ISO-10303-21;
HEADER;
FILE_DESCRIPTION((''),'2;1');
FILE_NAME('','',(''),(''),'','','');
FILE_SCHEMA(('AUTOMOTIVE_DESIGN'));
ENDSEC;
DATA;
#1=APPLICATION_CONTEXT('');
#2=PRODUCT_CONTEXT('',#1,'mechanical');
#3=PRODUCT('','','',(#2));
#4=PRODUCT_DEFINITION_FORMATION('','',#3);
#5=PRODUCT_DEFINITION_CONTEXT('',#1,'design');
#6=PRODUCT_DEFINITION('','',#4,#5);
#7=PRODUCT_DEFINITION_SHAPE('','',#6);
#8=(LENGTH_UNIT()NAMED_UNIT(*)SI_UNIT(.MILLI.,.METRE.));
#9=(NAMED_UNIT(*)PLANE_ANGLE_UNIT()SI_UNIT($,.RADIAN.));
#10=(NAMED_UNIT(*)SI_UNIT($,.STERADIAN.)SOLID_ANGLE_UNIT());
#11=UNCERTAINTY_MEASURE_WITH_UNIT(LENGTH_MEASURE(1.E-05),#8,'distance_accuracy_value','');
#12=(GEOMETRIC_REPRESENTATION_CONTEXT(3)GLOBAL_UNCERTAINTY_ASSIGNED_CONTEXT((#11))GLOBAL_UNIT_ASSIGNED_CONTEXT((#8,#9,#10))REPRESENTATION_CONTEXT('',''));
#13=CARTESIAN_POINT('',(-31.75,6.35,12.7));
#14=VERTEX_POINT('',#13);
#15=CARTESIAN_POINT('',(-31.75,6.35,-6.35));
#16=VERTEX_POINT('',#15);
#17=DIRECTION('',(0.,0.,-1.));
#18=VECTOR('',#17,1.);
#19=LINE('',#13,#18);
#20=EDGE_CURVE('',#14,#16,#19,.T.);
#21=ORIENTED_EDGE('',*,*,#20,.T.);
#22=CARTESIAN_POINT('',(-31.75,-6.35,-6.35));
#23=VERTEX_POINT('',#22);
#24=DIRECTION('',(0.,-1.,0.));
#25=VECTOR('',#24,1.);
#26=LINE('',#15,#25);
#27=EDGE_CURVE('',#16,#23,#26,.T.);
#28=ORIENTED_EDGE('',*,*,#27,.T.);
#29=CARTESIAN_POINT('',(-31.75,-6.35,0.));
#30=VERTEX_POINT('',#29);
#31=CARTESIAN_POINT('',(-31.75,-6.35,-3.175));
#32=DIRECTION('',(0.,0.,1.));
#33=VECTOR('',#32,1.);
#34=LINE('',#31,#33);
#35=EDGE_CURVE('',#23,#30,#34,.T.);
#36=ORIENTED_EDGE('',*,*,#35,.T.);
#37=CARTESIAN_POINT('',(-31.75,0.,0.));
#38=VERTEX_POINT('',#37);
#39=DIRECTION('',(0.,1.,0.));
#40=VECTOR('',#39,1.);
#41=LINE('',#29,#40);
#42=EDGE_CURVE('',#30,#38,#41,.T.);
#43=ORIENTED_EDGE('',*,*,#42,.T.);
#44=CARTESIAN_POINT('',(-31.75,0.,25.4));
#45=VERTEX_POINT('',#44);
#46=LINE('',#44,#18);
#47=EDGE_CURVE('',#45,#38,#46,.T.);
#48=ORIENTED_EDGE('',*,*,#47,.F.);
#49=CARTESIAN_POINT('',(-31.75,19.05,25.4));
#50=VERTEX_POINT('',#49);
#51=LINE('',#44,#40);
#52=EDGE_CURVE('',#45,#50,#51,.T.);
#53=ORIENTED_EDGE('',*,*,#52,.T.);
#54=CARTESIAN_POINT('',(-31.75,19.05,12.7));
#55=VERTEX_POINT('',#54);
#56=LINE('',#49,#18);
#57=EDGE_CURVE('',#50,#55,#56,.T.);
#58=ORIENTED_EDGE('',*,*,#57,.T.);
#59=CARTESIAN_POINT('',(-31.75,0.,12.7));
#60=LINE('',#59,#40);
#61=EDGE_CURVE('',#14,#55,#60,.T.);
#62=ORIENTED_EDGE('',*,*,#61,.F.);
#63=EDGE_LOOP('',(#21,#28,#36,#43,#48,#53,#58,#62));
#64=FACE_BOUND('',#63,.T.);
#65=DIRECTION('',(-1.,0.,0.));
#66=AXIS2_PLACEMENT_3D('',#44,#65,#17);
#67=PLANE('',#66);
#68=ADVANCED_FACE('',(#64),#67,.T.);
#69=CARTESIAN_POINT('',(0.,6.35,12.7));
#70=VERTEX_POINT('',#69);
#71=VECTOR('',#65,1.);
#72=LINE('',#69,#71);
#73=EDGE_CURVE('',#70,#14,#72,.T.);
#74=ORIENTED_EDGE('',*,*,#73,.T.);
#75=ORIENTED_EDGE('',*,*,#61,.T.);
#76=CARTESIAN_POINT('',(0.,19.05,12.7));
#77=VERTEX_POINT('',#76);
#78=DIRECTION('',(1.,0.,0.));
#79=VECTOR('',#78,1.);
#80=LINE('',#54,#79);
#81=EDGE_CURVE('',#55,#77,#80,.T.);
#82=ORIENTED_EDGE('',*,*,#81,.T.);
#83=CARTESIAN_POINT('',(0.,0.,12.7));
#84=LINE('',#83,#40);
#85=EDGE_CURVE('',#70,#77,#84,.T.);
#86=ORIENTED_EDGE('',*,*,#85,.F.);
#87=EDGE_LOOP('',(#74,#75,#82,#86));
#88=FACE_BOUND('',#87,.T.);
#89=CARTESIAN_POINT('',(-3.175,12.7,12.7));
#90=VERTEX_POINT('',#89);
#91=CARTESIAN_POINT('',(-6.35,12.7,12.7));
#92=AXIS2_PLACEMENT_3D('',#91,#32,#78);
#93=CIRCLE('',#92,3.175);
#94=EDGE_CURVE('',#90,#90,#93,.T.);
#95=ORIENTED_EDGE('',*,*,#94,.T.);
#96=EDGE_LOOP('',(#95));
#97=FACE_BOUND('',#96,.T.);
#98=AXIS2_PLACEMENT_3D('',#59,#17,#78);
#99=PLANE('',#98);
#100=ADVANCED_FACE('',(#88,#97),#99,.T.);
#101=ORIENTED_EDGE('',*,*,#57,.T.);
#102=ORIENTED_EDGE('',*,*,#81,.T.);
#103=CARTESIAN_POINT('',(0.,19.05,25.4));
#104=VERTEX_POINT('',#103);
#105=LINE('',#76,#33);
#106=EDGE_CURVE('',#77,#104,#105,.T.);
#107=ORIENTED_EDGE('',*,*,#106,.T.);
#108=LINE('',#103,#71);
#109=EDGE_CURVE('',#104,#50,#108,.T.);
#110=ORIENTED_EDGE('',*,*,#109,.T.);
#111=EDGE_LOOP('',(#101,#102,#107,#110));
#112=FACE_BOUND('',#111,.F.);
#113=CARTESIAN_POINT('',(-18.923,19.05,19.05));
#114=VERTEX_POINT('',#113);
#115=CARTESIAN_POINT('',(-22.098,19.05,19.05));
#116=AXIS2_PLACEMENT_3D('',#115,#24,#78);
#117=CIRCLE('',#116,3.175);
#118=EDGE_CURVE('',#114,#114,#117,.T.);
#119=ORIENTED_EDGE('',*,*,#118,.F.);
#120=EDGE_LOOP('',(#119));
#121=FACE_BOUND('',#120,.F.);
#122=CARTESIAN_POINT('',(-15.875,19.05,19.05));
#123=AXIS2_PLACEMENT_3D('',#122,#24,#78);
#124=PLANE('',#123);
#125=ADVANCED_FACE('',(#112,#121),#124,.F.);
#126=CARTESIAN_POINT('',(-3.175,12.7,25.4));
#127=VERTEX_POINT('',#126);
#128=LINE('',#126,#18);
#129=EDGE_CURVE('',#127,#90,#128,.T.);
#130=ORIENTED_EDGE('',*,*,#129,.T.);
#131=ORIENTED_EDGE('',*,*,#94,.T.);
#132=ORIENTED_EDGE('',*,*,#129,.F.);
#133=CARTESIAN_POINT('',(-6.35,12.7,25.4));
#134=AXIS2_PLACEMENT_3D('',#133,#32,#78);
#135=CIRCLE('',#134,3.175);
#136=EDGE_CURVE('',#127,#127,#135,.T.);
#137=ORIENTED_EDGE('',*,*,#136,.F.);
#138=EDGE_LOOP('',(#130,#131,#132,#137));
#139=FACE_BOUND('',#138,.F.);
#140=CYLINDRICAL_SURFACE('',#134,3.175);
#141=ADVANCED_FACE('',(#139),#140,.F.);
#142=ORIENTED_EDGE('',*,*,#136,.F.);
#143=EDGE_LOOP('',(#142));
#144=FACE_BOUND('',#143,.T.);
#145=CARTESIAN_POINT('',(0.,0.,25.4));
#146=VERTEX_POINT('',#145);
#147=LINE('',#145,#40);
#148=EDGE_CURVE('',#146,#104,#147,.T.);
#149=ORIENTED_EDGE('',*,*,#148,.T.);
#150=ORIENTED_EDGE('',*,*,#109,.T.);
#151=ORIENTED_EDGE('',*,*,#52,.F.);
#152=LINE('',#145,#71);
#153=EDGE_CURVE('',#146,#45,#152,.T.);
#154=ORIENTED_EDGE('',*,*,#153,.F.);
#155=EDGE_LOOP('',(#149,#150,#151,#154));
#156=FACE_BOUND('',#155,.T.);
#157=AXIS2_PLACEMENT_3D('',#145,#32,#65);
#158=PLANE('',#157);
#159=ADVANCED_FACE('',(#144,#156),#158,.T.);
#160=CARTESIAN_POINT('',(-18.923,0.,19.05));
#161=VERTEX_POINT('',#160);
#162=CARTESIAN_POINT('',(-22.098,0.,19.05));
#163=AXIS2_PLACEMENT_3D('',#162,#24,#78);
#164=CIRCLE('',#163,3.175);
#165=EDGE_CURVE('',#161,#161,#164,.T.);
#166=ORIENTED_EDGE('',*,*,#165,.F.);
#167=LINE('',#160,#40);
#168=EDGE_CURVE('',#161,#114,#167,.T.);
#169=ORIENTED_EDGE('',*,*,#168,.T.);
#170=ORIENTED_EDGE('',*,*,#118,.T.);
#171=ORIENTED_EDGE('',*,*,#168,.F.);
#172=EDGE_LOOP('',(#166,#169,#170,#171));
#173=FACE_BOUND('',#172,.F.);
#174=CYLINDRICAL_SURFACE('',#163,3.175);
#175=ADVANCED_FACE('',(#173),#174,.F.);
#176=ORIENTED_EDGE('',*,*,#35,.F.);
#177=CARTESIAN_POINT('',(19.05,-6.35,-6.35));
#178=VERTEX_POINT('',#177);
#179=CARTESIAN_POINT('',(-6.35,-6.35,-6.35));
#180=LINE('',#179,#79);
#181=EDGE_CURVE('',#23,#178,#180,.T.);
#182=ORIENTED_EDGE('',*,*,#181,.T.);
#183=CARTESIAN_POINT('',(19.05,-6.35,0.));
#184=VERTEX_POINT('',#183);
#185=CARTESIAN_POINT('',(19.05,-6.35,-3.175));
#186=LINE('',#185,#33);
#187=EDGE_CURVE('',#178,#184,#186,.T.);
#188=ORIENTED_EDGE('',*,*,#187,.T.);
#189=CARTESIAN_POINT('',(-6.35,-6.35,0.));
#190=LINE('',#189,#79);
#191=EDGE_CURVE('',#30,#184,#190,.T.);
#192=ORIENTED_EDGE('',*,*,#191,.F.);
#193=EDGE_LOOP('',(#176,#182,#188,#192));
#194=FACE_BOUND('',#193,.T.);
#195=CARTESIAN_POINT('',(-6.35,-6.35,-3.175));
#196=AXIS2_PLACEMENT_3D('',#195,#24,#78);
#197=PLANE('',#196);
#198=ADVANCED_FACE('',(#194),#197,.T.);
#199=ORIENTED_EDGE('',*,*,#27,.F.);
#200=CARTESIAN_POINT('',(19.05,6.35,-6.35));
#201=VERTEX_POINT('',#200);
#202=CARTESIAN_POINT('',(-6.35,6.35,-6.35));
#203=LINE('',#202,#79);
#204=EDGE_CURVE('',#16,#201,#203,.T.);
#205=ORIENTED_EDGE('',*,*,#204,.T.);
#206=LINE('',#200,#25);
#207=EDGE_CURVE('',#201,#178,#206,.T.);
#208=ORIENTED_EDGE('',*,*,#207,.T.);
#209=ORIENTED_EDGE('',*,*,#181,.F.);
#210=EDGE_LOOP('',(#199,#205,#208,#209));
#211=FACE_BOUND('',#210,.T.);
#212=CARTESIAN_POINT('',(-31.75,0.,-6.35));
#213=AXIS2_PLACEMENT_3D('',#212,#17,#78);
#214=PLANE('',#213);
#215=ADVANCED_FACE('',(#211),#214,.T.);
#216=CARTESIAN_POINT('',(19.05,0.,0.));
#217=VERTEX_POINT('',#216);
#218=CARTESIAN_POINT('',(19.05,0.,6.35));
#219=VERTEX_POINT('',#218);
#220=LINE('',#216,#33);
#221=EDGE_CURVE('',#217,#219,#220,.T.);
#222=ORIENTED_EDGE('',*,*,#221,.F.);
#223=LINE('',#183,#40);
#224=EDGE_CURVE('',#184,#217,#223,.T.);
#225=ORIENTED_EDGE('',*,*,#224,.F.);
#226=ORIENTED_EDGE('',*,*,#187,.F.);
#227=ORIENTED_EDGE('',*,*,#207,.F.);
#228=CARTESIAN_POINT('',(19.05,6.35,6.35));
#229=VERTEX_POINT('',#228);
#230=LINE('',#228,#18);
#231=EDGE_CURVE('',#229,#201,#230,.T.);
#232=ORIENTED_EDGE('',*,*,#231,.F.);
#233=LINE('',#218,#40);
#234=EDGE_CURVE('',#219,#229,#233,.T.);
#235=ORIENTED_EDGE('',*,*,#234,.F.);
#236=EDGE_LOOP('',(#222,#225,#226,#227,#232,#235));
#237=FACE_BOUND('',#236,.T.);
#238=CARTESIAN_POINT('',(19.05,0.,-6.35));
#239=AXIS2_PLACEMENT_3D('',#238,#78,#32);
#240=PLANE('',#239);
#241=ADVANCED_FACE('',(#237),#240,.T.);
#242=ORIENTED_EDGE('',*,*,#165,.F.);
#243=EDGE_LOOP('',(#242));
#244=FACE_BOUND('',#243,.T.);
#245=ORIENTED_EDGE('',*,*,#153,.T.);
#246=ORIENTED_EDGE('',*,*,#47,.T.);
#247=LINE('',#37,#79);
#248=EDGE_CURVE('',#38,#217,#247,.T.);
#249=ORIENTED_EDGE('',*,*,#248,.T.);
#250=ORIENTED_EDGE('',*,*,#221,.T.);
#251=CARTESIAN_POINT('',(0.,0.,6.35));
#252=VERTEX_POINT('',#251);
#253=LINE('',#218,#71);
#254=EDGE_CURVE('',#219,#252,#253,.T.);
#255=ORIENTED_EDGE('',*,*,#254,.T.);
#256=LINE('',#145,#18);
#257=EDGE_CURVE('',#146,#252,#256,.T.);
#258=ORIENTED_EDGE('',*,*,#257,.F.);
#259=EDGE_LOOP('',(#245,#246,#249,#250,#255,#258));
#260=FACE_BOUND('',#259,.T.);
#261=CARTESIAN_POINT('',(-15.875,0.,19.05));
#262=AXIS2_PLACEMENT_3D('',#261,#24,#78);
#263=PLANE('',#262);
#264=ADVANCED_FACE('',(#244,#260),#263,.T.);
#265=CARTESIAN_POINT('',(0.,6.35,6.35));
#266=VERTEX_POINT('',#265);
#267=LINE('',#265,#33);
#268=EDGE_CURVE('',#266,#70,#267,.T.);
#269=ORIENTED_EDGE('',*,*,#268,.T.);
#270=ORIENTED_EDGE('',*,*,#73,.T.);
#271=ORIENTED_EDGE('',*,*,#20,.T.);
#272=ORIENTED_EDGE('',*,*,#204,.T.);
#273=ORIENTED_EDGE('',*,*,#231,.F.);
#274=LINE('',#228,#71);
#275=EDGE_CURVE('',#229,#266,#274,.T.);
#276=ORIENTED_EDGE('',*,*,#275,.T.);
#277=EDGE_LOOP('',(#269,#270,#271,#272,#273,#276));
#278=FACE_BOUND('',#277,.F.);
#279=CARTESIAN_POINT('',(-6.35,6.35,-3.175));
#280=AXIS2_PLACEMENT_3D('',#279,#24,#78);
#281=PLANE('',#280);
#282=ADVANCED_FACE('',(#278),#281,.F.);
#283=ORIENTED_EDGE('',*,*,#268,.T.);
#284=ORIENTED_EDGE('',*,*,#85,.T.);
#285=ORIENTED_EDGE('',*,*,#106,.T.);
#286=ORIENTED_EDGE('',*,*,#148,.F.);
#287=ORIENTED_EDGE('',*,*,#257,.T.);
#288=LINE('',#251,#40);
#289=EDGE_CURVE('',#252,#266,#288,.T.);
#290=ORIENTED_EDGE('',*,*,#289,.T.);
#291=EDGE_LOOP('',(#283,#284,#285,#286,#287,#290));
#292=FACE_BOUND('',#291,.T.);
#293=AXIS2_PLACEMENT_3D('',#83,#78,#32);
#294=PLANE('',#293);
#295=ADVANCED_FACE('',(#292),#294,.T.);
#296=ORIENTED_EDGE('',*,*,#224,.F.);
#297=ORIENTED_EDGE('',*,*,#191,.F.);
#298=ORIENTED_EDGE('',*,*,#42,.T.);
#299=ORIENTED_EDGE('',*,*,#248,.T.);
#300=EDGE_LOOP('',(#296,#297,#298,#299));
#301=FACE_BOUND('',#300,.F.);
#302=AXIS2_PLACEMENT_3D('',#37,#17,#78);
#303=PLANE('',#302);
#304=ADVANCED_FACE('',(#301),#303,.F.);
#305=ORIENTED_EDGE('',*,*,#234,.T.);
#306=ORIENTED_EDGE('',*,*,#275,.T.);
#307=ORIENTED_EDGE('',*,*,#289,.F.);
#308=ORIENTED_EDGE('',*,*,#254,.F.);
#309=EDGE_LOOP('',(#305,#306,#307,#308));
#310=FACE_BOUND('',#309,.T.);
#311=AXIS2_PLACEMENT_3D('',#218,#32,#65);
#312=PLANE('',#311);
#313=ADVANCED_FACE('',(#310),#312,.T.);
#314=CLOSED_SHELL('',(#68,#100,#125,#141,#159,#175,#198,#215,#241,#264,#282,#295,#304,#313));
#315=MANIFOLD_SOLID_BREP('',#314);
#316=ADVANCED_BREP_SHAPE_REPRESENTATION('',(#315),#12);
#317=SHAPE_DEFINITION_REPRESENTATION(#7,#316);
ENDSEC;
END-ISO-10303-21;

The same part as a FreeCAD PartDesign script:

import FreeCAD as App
import Part
import Sketcher
Q = App.Units.Quantity


def add_polygon(sketch, points):
    """Adds a closed chain of lines whose ends are joined by coincident constraints."""
    first, n = sketch.GeometryCount, len(points)
    for a, b in zip(points, points[1:] + points[:1]):
        sketch.addGeometry(Part.LineSegment(App.Vector(*a, 0), App.Vector(*b, 0)), False)
    for i in range(n):
        sketch.addConstraint(Sketcher.Constraint("Coincident", first + i, 2, first + (i + 1) % n, 1))

doc = App.newDocument("Part")
body = doc.addObject("PartDesign::Body", "Body")

# Sketch on XZ plane
sketch1 = body.newObject("Sketcher::SketchObject", "Sketch")
sketch1.AttachmentSupport = (doc.getObject("XZ_Plane"), [""])
sketch1.MapMode = "FlatFace"
add_polygon(sketch1, [(19, 6), (0, 6), (0, 13), (-32, 13), (-32, 0), (19, 0)])  # lines 0-5
sketch1.addConstraint([
    Sketcher.Constraint("Horizontal", 0),
    Sketcher.Constraint("Vertical", 1),
    Sketcher.Constraint("Horizontal", 2),
    Sketcher.Constraint("Vertical", 3),
    Sketcher.Constraint("Horizontal", 4),
    Sketcher.Constraint("Vertical", 5),
    Sketcher.Constraint("PointOnObject", 0, 2, -2),
    Sketcher.Constraint("PointOnObject", 3, 2, -1),
    Sketcher.Constraint("Equal", 1, 5),
    Sketcher.Constraint("DistanceX", 4, 1, 4, 2, Q("2 in")),
    Sketcher.Constraint("DistanceY", 3, 2, 3, 1, Q("0.5 in")),
    Sketcher.Constraint("DistanceX", 0, 2, 0, 1, Q("0.75 in")),
])
pad1 = body.newObject("PartDesign::Pad", "Pad")
pad1.Profile = sketch1
pad1.Length = Q("0.25 in")
pad1.Reversed = True

# Sketch on XZ plane
sketch2 = body.newObject("Sketcher::SketchObject", "Sketch001")
sketch2.AttachmentSupport = (doc.getObject("XZ_Plane"), [""])
sketch2.MapMode = "FlatFace"
add_polygon(sketch2, [(-32, 0), (-32, -6), (19, -6), (19, 0)])  # lines 0-3
sketch2.addConstraint([
    Sketcher.Constraint("Vertical", 0),
    Sketcher.Constraint("Horizontal", 1),
    Sketcher.Constraint("Vertical", 2),
    Sketcher.Constraint("Horizontal", 3),
    Sketcher.Constraint("PointOnObject", 2, 2, -1),
    Sketcher.Constraint("DistanceX", 1, 1, 1, 2, Q("2 in")),
    Sketcher.Constraint("DistanceY", 0, 2, 0, 1, Q("0.25 in")),
    Sketcher.Constraint("DistanceX", 0, 2, -1, 1, Q("1.25 in")),
])
pad2 = body.newObject("PartDesign::Pad", "Pad001")
pad2.Profile = sketch2
pad2.Length = Q("0.5 in")
pad2.Midplane = True

# Sketch on XZ plane
sketch3 = body.newObject("Sketcher::SketchObject", "Sketch002")
sketch3.AttachmentSupport = (doc.getObject("XZ_Plane"), [""])
sketch3.MapMode = "FlatFace"
add_polygon(sketch3, [(0, 12.7), (0, 25.4), (-31.8, 25.4), (-31.8, 12.7)])  # lines 0-3
sketch3.addGeometry(Part.Circle(App.Vector(-22.1, 19.1, 0), App.Vector(0, 0, 1), 3.2), False)  # 4
sketch3.addConstraint([
    Sketcher.Constraint("Vertical", 0),
    Sketcher.Constraint("Horizontal", 1),
    Sketcher.Constraint("Vertical", 2),
    Sketcher.Constraint("Horizontal", 3),
    Sketcher.Constraint("PointOnObject", 0, 2, -2),
    Sketcher.Constraint("Diameter", 4, Q("0.25 in")),
    Sketcher.Constraint("DistanceY", 0, 1, 0, 2, Q("0.5 in")),
    Sketcher.Constraint("DistanceY", -1, 1, 0, 2, Q("1 in")),
    Sketcher.Constraint("DistanceX", 1, 2, 1, 1, Q("1.25 in")),
    Sketcher.Constraint("DistanceX", 4, 3, -1, 1, Q("0.87 in")),
    Sketcher.Constraint("DistanceY", -1, 1, 4, 3, Q("0.75 in")),
])
pad3 = body.newObject("PartDesign::Pad", "Pad002")
pad3.Profile = sketch3
pad3.Length = Q("0.75 in")
pad3.Reversed = True

# Sketch on XY plane
sketch4 = body.newObject("Sketcher::SketchObject", "Sketch003")
sketch4.AttachmentSupport = (doc.getObject("XY_Plane"), [""])
sketch4.MapMode = "FlatFace"
sketch4.AttachmentOffset = App.Placement(App.Vector(0, 0, 1 * 25.4), App.Rotation())
sketch4.addGeometry(Part.Circle(App.Vector(-6.3, 12.7, 0), App.Vector(0, 0, 1), 3.2), False)
sketch4.addConstraint([
    Sketcher.Constraint("Diameter", 0, Q("0.25 in")),
    Sketcher.Constraint("DistanceY", -1, 1, 0, 3, Q("0.5 in")),
    Sketcher.Constraint("DistanceX", 0, 3, -1, 1, Q("0.25 in")),
])
pocket1 = body.newObject("PartDesign::Pocket", "Pocket")
pocket1.Profile = sketch4
pocket1.Type = "ThroughAll"

doc.recompute()
